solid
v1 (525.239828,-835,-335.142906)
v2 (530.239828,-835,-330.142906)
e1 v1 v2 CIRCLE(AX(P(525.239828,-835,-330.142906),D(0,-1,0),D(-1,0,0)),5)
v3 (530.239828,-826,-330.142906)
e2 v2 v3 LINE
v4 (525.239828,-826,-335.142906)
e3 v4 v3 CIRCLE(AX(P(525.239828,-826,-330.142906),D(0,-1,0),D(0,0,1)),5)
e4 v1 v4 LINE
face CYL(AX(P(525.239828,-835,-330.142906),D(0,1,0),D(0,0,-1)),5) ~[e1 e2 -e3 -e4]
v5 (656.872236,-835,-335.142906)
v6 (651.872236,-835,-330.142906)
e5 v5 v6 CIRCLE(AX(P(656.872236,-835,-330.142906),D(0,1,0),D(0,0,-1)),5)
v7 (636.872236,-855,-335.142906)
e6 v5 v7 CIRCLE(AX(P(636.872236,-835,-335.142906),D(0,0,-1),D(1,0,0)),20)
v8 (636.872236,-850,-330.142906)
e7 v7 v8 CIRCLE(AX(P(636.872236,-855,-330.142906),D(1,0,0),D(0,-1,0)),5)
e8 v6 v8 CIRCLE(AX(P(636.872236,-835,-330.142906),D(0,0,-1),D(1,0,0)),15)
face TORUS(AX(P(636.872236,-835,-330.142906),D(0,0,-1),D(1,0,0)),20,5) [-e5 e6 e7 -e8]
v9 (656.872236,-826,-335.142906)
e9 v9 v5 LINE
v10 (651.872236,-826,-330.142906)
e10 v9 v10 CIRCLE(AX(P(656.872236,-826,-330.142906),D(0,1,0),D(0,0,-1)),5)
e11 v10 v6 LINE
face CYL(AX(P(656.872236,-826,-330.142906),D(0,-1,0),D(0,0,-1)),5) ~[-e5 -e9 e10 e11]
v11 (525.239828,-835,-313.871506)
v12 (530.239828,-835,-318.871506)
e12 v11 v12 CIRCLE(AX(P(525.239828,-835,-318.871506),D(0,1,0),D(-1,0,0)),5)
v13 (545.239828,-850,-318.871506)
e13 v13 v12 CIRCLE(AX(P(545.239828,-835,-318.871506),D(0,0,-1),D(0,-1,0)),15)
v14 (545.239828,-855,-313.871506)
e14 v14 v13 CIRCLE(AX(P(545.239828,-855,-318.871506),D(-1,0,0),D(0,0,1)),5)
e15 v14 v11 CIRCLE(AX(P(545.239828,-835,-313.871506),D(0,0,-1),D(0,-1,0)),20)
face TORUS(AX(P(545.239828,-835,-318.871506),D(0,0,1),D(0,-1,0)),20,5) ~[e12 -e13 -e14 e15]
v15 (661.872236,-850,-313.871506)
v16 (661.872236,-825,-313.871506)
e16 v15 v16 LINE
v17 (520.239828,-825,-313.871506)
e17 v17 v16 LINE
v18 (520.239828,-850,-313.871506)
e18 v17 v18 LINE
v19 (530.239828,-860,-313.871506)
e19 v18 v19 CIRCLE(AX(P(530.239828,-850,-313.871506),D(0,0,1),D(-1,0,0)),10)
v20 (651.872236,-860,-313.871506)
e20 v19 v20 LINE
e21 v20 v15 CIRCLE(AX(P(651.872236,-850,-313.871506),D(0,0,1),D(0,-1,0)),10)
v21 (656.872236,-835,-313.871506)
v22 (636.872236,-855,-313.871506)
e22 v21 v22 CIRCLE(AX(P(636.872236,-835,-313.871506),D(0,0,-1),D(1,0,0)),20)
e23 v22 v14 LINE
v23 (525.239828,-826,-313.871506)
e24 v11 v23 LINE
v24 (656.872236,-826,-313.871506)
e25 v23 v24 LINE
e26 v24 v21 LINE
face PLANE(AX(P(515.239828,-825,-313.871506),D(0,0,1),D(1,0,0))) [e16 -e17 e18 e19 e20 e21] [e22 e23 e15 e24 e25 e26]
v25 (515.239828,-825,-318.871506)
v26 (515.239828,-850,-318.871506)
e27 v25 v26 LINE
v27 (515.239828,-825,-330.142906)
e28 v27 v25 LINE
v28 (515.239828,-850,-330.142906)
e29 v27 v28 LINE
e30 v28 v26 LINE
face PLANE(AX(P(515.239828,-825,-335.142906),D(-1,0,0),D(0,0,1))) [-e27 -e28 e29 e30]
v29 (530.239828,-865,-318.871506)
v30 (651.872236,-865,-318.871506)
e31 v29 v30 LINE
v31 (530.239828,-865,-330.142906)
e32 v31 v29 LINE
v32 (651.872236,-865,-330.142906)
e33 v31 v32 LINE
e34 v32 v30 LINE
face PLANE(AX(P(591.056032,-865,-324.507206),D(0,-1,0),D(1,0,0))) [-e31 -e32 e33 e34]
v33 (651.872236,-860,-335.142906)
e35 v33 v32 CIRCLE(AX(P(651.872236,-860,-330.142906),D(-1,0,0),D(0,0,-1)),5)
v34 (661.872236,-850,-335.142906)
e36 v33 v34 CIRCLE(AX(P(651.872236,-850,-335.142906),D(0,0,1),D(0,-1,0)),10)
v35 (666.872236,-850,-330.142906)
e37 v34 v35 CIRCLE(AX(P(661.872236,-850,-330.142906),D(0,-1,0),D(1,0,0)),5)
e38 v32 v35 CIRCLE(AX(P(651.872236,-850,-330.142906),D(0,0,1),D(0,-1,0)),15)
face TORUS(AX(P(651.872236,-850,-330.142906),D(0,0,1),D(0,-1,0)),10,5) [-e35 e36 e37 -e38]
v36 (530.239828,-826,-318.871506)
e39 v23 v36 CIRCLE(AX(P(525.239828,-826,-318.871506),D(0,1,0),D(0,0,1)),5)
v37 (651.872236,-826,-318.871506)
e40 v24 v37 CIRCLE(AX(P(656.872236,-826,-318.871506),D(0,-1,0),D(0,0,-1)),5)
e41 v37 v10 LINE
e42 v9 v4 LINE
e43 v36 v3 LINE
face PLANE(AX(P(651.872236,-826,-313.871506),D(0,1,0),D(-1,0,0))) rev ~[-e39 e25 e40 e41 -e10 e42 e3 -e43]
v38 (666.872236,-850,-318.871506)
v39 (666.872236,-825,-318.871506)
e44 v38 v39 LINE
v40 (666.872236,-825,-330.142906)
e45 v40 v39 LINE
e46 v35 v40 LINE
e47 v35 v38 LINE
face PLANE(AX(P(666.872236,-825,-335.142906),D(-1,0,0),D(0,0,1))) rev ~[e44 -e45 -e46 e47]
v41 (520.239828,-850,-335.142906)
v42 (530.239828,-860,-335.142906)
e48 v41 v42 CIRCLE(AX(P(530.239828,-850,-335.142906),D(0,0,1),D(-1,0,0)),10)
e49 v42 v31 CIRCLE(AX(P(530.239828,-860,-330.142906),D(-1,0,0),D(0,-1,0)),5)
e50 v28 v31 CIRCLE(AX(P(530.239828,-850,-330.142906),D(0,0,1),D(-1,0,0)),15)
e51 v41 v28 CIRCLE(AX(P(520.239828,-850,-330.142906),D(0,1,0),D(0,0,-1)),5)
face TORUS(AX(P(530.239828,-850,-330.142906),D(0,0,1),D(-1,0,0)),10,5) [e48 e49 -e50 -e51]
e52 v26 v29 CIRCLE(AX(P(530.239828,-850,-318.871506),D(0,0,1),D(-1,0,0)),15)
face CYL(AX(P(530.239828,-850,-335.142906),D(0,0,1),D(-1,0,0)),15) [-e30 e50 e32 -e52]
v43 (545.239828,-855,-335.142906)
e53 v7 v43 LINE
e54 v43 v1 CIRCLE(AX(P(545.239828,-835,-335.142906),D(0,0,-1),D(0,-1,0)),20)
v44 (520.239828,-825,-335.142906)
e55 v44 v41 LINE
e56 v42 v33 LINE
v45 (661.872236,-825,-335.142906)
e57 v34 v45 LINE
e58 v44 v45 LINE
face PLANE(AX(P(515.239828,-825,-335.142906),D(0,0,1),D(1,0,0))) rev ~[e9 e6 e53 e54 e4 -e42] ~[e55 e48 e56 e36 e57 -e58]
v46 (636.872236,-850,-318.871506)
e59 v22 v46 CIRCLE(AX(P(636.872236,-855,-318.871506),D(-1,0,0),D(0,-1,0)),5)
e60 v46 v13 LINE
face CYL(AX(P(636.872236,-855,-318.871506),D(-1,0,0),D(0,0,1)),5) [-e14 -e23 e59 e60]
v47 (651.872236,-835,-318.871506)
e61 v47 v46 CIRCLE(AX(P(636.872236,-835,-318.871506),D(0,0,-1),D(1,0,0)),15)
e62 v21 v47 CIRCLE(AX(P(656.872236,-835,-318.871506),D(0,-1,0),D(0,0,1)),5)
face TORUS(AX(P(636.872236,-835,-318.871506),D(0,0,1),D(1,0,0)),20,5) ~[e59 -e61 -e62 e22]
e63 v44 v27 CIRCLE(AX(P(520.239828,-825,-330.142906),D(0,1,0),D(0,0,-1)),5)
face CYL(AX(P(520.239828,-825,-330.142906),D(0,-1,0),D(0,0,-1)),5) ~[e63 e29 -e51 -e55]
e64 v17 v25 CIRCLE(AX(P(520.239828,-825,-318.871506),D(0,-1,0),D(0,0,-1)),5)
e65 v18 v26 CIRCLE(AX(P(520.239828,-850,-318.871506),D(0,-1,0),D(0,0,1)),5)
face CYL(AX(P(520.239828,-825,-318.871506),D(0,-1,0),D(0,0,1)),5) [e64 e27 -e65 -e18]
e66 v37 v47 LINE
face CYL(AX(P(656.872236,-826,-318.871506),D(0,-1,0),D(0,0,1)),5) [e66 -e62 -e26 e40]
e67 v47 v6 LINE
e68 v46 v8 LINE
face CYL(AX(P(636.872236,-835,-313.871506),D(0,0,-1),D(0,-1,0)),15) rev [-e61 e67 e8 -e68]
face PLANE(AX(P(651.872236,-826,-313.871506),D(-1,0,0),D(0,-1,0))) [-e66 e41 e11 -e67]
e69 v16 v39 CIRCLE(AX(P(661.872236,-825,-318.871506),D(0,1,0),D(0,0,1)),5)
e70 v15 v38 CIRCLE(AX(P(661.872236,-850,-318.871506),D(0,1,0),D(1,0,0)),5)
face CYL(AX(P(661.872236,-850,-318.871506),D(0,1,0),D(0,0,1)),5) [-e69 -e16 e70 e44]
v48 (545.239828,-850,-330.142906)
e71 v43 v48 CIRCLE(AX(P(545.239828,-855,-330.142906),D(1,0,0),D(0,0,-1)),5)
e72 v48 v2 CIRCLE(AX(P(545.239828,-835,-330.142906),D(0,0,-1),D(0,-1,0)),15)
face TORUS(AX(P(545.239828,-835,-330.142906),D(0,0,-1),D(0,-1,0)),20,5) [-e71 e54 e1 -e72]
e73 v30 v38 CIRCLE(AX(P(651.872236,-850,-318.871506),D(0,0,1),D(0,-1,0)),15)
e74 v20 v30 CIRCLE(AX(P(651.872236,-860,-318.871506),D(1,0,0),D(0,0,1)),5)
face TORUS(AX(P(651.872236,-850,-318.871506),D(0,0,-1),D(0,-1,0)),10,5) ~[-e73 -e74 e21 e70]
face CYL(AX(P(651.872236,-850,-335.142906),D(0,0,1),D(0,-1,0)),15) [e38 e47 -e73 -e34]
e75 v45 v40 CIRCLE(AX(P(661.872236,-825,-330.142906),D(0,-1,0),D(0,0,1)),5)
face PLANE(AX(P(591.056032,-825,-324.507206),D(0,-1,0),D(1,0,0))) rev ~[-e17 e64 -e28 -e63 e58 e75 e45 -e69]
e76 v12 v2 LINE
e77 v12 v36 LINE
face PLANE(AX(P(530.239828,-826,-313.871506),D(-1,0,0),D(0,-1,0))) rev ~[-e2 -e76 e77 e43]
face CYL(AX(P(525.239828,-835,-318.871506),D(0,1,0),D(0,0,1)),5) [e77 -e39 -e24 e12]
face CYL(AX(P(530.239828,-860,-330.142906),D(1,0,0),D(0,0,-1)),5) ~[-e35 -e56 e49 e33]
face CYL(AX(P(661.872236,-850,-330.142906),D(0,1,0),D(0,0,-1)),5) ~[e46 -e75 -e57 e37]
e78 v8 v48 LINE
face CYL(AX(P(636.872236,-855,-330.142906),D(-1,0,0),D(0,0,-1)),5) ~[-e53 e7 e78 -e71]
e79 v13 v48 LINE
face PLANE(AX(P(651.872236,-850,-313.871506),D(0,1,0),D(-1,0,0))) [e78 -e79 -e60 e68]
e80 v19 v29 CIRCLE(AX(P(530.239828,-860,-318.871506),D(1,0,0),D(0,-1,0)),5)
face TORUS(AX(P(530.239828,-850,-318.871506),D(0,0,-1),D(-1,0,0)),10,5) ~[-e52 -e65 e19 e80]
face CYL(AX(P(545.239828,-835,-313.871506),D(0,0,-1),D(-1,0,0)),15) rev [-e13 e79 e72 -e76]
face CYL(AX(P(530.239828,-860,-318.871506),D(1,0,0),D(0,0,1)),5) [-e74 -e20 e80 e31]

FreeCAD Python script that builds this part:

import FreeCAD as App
import Part
import Sketcher
Q = App.Units.Quantity


def edges_at(feature, points):
    """Names of the edges that pass closest to the given points."""
    edges = feature.Shape.Edges
    near = lambda p: min(range(len(edges)), key=lambda i: edges[i].distToShape(Part.Vertex(*p))[0])
    return sorted({f"Edge{near(p) + 1}" for p in points})

doc = App.newDocument("Part")
body = doc.addObject("PartDesign::Body", "Body")

sketch1 = body.newObject("Sketcher::SketchObject", "Sketch")
sketch1.AttachmentSupport = (doc.getObject("XZ_Plane"), [""])
sketch1.MapMode = "FlatFace"
sketch1.AttachmentOffset = App.Placement(App.Vector(0, 0, 825), App.Rotation())
sketch1.addGeometry([
    Part.LineSegment(App.Vector(515, -314, 0), App.Vector(515, -335, 0)),
    Part.LineSegment(App.Vector(515, -335, 0), App.Vector(667, -335, 0)),
    Part.LineSegment(App.Vector(667, -335, 0), App.Vector(667, -314, 0)),
    Part.LineSegment(App.Vector(667, -314, 0), App.Vector(515, -314, 0)),
], False)
sketch1.addConstraint([
    Sketcher.Constraint("Coincident", 0, 2, 1, 1),
    Sketcher.Constraint("Coincident", 1, 2, 2, 1),
    Sketcher.Constraint("Coincident", 2, 2, 3, 1),
    Sketcher.Constraint("Coincident", 3, 2, 0, 1),
    Sketcher.Constraint("Vertical", 0),
    Sketcher.Constraint("Horizontal", 1),
    Sketcher.Constraint("Vertical", 2),
    Sketcher.Constraint("Horizontal", 3),
    Sketcher.Constraint("DistanceY", 0, 2, 0, 1, Q("21.2714 mm")),
    Sketcher.Constraint("DistanceX", 1, 1, 1, 2, Q("151.632409 mm")),
    Sketcher.Constraint("DistanceX", -1, 1, 0, 2, Q("515.239828 mm")),
    Sketcher.Constraint("DistanceY", 0, 2, -1, 1, Q("335.142906 mm")),
])
pad1 = body.newObject("PartDesign::Pad", "Pad")
pad1.Profile = sketch1
pad1.Length = 40

sketch2 = body.newObject("Sketcher::SketchObject", "Sketch001")
sketch2.AttachmentSupport = (doc.getObject("XY_Plane"), [""])
sketch2.MapMode = "FlatFace"
sketch2.AttachmentOffset = App.Placement(App.Vector(0, 0, -313.871506), App.Rotation())
sketch2.addGeometry([
    Part.LineSegment(App.Vector(652, -850, 0), App.Vector(652, -826, 0)),
    Part.LineSegment(App.Vector(652, -826, 0), App.Vector(530, -826, 0)),
    Part.LineSegment(App.Vector(530, -826, 0), App.Vector(530, -850, 0)),
    Part.LineSegment(App.Vector(530, -850, 0), App.Vector(652, -850, 0)),
], False)
sketch2.addConstraint([
    Sketcher.Constraint("Coincident", 0, 2, 1, 1),
    Sketcher.Constraint("Coincident", 1, 2, 2, 1),
    Sketcher.Constraint("Coincident", 2, 2, 3, 1),
    Sketcher.Constraint("Coincident", 3, 2, 0, 1),
    Sketcher.Constraint("Vertical", 0),
    Sketcher.Constraint("Horizontal", 1),
    Sketcher.Constraint("Vertical", 2),
    Sketcher.Constraint("Horizontal", 3),
    Sketcher.Constraint("DistanceY", 0, 1, 0, 2, Q("24 mm")),
    Sketcher.Constraint("DistanceY", 0, 2, -1, 1, Q("826 mm")),
    Sketcher.Constraint("DistanceX", 1, 2, 1, 1, Q("121.632409 mm")),
    Sketcher.Constraint("DistanceX", -1, 1, 0, 2, Q("651.872236 mm")),
])
pocket1 = body.newObject("PartDesign::Pocket", "Pocket")
pocket1.Profile = sketch2
pocket1.Type = "ThroughAll"
doc.recompute()

fillet = body.newObject("PartDesign::Fillet", "Fillet")
fillet.Base = (pocket1, edges_at(pocket1, [
    (515.24, -865, -324.507),
    (666.872, -865, -324.507),
    (651.872, -850, -324.507),
    (530.24, -850, -324.507),
]))
fillet.Radius = 15
doc.recompute()

fillet2 = body.newObject("PartDesign::Fillet", "Fillet001")
fillet2.Base = (fillet, edges_at(fillet, [
    (591.056, -850, -313.872),
    (591.056, -850, -335.143),
    (591.056, -865, -313.872),
    (591.056, -865, -335.143),
]))
fillet2.Radius = 5

doc.recompute()
